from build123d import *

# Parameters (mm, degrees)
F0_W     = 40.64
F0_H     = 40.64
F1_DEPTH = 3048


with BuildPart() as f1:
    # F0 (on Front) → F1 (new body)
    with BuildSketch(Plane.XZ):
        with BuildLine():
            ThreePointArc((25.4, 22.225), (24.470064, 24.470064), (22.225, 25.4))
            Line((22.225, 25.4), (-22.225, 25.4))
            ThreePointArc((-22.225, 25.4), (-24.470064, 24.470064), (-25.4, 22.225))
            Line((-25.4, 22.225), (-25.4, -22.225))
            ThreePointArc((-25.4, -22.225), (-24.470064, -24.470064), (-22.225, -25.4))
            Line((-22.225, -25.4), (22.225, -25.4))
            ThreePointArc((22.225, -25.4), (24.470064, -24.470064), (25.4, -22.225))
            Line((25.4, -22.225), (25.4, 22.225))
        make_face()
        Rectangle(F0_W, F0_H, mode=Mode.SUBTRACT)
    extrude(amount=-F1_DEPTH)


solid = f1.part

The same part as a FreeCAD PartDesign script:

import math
import FreeCAD as App
import Part
import Sketcher
Q = App.Units.Quantity

doc = App.newDocument("Part")
params = doc.addObject("Spreadsheet::Sheet", "Params")
for row, (alias, value) in enumerate([
    ("sketch1_width", "1.6 in"),
    ("sketch1_radius", "0.125 in"),
    ("pad1_length", "120 in"),
], start=1):
    params.set(f"A{row}", alias)
    params.set(f"B{row}", "=" + value)
    params.setAlias(f"B{row}", alias)

body = doc.addObject("PartDesign::Body", "Body")

sketch1 = doc.addObject("Sketcher::SketchObject", "Sketch")
body.addObject(sketch1)
sketch1.AttachmentSupport = (doc.XZ_Plane, [""])
sketch1.MapMode = "FlatFace"
sketch1.addGeometry(Part.ArcOfCircle(Part.Circle(App.Vector(22.2, 22.2, 0), App.Vector(0, 0, 1), 3.2), math.radians(0), math.radians(90)), False)
sketch1.addGeometry(Part.LineSegment(App.Vector(22.2, 25.4, 0), App.Vector(-22.2, 25.4, 0)), False)
sketch1.addGeometry(Part.ArcOfCircle(Part.Circle(App.Vector(-22.2, 22.2, 0), App.Vector(0, 0, 1), 3.2), math.radians(90), math.radians(180)), False)
sketch1.addGeometry(Part.LineSegment(App.Vector(-25.4, 22.2, 0), App.Vector(-25.4, -22.2, 0)), False)
sketch1.addGeometry(Part.ArcOfCircle(Part.Circle(App.Vector(-22.2, -22.2, 0), App.Vector(0, 0, 1), 3.2), math.radians(-180), math.radians(-90)), False)
sketch1.addGeometry(Part.LineSegment(App.Vector(-22.2, -25.4, 0), App.Vector(22.2, -25.4, 0)), False)
sketch1.addGeometry(Part.ArcOfCircle(Part.Circle(App.Vector(22.2, -22.2, 0), App.Vector(0, 0, 1), 3.2), math.radians(-90), math.radians(0)), False)
sketch1.addGeometry(Part.LineSegment(App.Vector(25.4, -22.2, 0), App.Vector(25.4, 22.2, 0)), False)
sketch1.addGeometry(Part.LineSegment(App.Vector(20.3, -20.3, 0), App.Vector(-20.3, -20.3, 0)), False)
sketch1.addGeometry(Part.LineSegment(App.Vector(-20.3, -20.3, 0), App.Vector(-20.3, 20.3, 0)), False)
sketch1.addGeometry(Part.LineSegment(App.Vector(-20.3, 20.3, 0), App.Vector(20.3, 20.3, 0)), False)
sketch1.addGeometry(Part.LineSegment(App.Vector(20.3, 20.3, 0), App.Vector(20.3, -20.3, 0)), False)
sketch1.addConstraint(Sketcher.Constraint("Tangent", 0, 2, 1, 1))
sketch1.addConstraint(Sketcher.Constraint("Tangent", 1, 2, 2, 1))
sketch1.addConstraint(Sketcher.Constraint("Tangent", 2, 2, 3, 1))
sketch1.addConstraint(Sketcher.Constraint("Tangent", 3, 2, 4, 1))
sketch1.addConstraint(Sketcher.Constraint("Tangent", 4, 2, 5, 1))
sketch1.addConstraint(Sketcher.Constraint("Tangent", 5, 2, 6, 1))
sketch1.addConstraint(Sketcher.Constraint("Tangent", 6, 2, 7, 1))
sketch1.addConstraint(Sketcher.Constraint("Tangent", 7, 2, 0, 1))
sketch1.addConstraint(Sketcher.Constraint("Coincident", 8, 2, 9, 1))
sketch1.addConstraint(Sketcher.Constraint("Coincident", 9, 2, 10, 1))
sketch1.addConstraint(Sketcher.Constraint("Coincident", 10, 2, 11, 1))
sketch1.addConstraint(Sketcher.Constraint("Coincident", 11, 2, 8, 1))
sketch1.addConstraint(Sketcher.Constraint("Horizontal", 1))
sketch1.addConstraint(Sketcher.Constraint("Vertical", 3))
sketch1.addConstraint(Sketcher.Constraint("Horizontal", 5))
sketch1.addConstraint(Sketcher.Constraint("Vertical", 7))
sketch1.addConstraint(Sketcher.Constraint("Horizontal", 8))
sketch1.addConstraint(Sketcher.Constraint("Vertical", 9))
sketch1.addConstraint(Sketcher.Constraint("Horizontal", 10))
sketch1.addConstraint(Sketcher.Constraint("Vertical", 11))
sketch1.addConstraint(Sketcher.Constraint("Equal", 0, 2))
sketch1.addConstraint(Sketcher.Constraint("Equal", 2, 4))
sketch1.addConstraint(Sketcher.Constraint("Equal", 4, 6))
sketch1.addConstraint(Sketcher.Constraint("Symmetric", 0, 3, 4, 3, -1, 1))
sketch1.addConstraint(Sketcher.Constraint("Symmetric", 8, 2, 10, 2, -1, 1))
sketch1.addConstraint(Sketcher.Constraint("Equal", 5, 3))
sketch1.addConstraint(Sketcher.Constraint("Equal", 10, 9))
sketch1.addConstraint(Sketcher.Constraint("DistanceX", 8, 2, 8, 1, Q("1.6 in")))
sketch1.addConstraint(Sketcher.Constraint("DistanceY", -1, 1, 0, 2, Q("1 in")))
sketch1.addConstraint(Sketcher.Constraint("Radius", 0, Q("0.125 in")))
sketch1.setExpression("Constraints[27]", "Params.sketch1_width")
sketch1.setExpression("Constraints[29]", "Params.sketch1_radius")
pad1 = doc.addObject("PartDesign::Pad", "Pad")
body.addObject(pad1)
pad1.Profile = sketch1
pad1.setExpression("Length", "Params.pad1_length")
pad1.Reversed = True

doc.recompute()
